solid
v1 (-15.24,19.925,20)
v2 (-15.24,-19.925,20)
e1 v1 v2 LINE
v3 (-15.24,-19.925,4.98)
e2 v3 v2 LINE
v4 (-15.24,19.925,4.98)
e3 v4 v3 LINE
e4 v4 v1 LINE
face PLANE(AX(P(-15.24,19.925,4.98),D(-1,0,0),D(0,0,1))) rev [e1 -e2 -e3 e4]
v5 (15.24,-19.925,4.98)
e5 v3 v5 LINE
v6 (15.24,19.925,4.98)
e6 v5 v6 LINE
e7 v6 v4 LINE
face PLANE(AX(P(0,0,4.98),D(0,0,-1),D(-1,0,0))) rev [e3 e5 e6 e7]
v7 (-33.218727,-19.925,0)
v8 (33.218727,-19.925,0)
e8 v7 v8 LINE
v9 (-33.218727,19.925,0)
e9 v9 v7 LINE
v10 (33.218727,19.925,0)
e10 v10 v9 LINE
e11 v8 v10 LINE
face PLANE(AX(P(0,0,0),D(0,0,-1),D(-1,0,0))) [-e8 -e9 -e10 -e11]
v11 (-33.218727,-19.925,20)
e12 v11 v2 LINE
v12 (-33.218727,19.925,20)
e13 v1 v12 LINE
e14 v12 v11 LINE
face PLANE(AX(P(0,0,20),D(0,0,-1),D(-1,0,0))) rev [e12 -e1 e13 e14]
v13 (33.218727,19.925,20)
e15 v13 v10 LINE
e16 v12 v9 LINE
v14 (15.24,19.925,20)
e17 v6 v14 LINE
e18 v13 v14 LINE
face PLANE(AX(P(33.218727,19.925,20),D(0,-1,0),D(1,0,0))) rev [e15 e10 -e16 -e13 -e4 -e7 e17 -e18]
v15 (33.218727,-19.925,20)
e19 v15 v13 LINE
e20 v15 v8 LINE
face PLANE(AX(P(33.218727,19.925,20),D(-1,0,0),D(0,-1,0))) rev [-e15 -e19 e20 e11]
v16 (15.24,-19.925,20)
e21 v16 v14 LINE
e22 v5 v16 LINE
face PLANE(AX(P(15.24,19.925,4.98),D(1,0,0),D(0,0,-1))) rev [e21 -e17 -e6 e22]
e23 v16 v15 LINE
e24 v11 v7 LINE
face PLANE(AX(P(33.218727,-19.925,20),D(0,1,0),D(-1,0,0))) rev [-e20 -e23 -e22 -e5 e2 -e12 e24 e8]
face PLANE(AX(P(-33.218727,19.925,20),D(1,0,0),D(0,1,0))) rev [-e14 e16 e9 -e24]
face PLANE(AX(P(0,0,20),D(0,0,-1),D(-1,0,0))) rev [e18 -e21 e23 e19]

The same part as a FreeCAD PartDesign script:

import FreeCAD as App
import Part
import Sketcher


def add_polygon(sketch, points):
    """Adds a closed chain of lines whose ends are joined by coincident constraints."""
    first, n = sketch.GeometryCount, len(points)
    for a, b in zip(points, points[1:] + points[:1]):
        sketch.addGeometry(Part.LineSegment(App.Vector(*a, 0), App.Vector(*b, 0)), False)
    for i in range(n):
        sketch.addConstraint(Sketcher.Constraint("Coincident", first + i, 2, first + (i + 1) % n, 1))

doc = App.newDocument("Part")
body = doc.addObject("PartDesign::Body", "Body")

# Sketch on XY plane
sketch1 = body.newObject("Sketcher::SketchObject", "Sketch")
sketch1.AttachmentSupport = (doc.getObject("XY_Plane"), [""])
sketch1.MapMode = "FlatFace"
add_polygon(sketch1, [(-33.218727, 19.925), (-33.218727, -19.925), (33.218727, -19.925), (33.218727, 19.925)])  # lines 0-3
sketch1.addConstraint([
    Sketcher.Constraint("Vertical", 0),
    Sketcher.Constraint("Horizontal", 1),
    Sketcher.Constraint("Vertical", 2),
    Sketcher.Constraint("Horizontal", 3),
    Sketcher.Constraint("Symmetric", 0, 2, 2, 2, -1, 1),
    Sketcher.Constraint("DistanceY", 0, 2, 0, 1, 39.85),
    Sketcher.Constraint("DistanceX", 1, 1, 1, 2, 66.437454),
])
pad1 = body.newObject("PartDesign::Pad", "Pad")
pad1.Profile = sketch1
pad1.Length = 20

# Sketch on XY plane
sketch2 = body.newObject("Sketcher::SketchObject", "Sketch001")
sketch2.AttachmentSupport = (doc.getObject("XY_Plane"), [""])
sketch2.MapMode = "FlatFace"
sketch2.AttachmentOffset = App.Placement(App.Vector(0, 0, 20), App.Rotation())
add_polygon(sketch2, [(-15.24, 19.925), (-15.24, -19.925), (15.24, -19.925), (15.24, 19.925)])  # lines 0-3
sketch2.addConstraint([
    Sketcher.Constraint("Vertical", 0),
    Sketcher.Constraint("Horizontal", 1),
    Sketcher.Constraint("Vertical", 2),
    Sketcher.Constraint("Horizontal", 3),
    Sketcher.Constraint("Symmetric", 0, 2, 2, 2, -1, 1),
    Sketcher.Constraint("DistanceX", 1, 1, 1, 2, 30.48),
    Sketcher.Constraint("DistanceY", 0, 2, 0, 1, 39.85),
])
pocket1 = body.newObject("PartDesign::Pocket", "Pocket")
pocket1.Profile = sketch2
pocket1.Length = 15.02

doc.recompute()
